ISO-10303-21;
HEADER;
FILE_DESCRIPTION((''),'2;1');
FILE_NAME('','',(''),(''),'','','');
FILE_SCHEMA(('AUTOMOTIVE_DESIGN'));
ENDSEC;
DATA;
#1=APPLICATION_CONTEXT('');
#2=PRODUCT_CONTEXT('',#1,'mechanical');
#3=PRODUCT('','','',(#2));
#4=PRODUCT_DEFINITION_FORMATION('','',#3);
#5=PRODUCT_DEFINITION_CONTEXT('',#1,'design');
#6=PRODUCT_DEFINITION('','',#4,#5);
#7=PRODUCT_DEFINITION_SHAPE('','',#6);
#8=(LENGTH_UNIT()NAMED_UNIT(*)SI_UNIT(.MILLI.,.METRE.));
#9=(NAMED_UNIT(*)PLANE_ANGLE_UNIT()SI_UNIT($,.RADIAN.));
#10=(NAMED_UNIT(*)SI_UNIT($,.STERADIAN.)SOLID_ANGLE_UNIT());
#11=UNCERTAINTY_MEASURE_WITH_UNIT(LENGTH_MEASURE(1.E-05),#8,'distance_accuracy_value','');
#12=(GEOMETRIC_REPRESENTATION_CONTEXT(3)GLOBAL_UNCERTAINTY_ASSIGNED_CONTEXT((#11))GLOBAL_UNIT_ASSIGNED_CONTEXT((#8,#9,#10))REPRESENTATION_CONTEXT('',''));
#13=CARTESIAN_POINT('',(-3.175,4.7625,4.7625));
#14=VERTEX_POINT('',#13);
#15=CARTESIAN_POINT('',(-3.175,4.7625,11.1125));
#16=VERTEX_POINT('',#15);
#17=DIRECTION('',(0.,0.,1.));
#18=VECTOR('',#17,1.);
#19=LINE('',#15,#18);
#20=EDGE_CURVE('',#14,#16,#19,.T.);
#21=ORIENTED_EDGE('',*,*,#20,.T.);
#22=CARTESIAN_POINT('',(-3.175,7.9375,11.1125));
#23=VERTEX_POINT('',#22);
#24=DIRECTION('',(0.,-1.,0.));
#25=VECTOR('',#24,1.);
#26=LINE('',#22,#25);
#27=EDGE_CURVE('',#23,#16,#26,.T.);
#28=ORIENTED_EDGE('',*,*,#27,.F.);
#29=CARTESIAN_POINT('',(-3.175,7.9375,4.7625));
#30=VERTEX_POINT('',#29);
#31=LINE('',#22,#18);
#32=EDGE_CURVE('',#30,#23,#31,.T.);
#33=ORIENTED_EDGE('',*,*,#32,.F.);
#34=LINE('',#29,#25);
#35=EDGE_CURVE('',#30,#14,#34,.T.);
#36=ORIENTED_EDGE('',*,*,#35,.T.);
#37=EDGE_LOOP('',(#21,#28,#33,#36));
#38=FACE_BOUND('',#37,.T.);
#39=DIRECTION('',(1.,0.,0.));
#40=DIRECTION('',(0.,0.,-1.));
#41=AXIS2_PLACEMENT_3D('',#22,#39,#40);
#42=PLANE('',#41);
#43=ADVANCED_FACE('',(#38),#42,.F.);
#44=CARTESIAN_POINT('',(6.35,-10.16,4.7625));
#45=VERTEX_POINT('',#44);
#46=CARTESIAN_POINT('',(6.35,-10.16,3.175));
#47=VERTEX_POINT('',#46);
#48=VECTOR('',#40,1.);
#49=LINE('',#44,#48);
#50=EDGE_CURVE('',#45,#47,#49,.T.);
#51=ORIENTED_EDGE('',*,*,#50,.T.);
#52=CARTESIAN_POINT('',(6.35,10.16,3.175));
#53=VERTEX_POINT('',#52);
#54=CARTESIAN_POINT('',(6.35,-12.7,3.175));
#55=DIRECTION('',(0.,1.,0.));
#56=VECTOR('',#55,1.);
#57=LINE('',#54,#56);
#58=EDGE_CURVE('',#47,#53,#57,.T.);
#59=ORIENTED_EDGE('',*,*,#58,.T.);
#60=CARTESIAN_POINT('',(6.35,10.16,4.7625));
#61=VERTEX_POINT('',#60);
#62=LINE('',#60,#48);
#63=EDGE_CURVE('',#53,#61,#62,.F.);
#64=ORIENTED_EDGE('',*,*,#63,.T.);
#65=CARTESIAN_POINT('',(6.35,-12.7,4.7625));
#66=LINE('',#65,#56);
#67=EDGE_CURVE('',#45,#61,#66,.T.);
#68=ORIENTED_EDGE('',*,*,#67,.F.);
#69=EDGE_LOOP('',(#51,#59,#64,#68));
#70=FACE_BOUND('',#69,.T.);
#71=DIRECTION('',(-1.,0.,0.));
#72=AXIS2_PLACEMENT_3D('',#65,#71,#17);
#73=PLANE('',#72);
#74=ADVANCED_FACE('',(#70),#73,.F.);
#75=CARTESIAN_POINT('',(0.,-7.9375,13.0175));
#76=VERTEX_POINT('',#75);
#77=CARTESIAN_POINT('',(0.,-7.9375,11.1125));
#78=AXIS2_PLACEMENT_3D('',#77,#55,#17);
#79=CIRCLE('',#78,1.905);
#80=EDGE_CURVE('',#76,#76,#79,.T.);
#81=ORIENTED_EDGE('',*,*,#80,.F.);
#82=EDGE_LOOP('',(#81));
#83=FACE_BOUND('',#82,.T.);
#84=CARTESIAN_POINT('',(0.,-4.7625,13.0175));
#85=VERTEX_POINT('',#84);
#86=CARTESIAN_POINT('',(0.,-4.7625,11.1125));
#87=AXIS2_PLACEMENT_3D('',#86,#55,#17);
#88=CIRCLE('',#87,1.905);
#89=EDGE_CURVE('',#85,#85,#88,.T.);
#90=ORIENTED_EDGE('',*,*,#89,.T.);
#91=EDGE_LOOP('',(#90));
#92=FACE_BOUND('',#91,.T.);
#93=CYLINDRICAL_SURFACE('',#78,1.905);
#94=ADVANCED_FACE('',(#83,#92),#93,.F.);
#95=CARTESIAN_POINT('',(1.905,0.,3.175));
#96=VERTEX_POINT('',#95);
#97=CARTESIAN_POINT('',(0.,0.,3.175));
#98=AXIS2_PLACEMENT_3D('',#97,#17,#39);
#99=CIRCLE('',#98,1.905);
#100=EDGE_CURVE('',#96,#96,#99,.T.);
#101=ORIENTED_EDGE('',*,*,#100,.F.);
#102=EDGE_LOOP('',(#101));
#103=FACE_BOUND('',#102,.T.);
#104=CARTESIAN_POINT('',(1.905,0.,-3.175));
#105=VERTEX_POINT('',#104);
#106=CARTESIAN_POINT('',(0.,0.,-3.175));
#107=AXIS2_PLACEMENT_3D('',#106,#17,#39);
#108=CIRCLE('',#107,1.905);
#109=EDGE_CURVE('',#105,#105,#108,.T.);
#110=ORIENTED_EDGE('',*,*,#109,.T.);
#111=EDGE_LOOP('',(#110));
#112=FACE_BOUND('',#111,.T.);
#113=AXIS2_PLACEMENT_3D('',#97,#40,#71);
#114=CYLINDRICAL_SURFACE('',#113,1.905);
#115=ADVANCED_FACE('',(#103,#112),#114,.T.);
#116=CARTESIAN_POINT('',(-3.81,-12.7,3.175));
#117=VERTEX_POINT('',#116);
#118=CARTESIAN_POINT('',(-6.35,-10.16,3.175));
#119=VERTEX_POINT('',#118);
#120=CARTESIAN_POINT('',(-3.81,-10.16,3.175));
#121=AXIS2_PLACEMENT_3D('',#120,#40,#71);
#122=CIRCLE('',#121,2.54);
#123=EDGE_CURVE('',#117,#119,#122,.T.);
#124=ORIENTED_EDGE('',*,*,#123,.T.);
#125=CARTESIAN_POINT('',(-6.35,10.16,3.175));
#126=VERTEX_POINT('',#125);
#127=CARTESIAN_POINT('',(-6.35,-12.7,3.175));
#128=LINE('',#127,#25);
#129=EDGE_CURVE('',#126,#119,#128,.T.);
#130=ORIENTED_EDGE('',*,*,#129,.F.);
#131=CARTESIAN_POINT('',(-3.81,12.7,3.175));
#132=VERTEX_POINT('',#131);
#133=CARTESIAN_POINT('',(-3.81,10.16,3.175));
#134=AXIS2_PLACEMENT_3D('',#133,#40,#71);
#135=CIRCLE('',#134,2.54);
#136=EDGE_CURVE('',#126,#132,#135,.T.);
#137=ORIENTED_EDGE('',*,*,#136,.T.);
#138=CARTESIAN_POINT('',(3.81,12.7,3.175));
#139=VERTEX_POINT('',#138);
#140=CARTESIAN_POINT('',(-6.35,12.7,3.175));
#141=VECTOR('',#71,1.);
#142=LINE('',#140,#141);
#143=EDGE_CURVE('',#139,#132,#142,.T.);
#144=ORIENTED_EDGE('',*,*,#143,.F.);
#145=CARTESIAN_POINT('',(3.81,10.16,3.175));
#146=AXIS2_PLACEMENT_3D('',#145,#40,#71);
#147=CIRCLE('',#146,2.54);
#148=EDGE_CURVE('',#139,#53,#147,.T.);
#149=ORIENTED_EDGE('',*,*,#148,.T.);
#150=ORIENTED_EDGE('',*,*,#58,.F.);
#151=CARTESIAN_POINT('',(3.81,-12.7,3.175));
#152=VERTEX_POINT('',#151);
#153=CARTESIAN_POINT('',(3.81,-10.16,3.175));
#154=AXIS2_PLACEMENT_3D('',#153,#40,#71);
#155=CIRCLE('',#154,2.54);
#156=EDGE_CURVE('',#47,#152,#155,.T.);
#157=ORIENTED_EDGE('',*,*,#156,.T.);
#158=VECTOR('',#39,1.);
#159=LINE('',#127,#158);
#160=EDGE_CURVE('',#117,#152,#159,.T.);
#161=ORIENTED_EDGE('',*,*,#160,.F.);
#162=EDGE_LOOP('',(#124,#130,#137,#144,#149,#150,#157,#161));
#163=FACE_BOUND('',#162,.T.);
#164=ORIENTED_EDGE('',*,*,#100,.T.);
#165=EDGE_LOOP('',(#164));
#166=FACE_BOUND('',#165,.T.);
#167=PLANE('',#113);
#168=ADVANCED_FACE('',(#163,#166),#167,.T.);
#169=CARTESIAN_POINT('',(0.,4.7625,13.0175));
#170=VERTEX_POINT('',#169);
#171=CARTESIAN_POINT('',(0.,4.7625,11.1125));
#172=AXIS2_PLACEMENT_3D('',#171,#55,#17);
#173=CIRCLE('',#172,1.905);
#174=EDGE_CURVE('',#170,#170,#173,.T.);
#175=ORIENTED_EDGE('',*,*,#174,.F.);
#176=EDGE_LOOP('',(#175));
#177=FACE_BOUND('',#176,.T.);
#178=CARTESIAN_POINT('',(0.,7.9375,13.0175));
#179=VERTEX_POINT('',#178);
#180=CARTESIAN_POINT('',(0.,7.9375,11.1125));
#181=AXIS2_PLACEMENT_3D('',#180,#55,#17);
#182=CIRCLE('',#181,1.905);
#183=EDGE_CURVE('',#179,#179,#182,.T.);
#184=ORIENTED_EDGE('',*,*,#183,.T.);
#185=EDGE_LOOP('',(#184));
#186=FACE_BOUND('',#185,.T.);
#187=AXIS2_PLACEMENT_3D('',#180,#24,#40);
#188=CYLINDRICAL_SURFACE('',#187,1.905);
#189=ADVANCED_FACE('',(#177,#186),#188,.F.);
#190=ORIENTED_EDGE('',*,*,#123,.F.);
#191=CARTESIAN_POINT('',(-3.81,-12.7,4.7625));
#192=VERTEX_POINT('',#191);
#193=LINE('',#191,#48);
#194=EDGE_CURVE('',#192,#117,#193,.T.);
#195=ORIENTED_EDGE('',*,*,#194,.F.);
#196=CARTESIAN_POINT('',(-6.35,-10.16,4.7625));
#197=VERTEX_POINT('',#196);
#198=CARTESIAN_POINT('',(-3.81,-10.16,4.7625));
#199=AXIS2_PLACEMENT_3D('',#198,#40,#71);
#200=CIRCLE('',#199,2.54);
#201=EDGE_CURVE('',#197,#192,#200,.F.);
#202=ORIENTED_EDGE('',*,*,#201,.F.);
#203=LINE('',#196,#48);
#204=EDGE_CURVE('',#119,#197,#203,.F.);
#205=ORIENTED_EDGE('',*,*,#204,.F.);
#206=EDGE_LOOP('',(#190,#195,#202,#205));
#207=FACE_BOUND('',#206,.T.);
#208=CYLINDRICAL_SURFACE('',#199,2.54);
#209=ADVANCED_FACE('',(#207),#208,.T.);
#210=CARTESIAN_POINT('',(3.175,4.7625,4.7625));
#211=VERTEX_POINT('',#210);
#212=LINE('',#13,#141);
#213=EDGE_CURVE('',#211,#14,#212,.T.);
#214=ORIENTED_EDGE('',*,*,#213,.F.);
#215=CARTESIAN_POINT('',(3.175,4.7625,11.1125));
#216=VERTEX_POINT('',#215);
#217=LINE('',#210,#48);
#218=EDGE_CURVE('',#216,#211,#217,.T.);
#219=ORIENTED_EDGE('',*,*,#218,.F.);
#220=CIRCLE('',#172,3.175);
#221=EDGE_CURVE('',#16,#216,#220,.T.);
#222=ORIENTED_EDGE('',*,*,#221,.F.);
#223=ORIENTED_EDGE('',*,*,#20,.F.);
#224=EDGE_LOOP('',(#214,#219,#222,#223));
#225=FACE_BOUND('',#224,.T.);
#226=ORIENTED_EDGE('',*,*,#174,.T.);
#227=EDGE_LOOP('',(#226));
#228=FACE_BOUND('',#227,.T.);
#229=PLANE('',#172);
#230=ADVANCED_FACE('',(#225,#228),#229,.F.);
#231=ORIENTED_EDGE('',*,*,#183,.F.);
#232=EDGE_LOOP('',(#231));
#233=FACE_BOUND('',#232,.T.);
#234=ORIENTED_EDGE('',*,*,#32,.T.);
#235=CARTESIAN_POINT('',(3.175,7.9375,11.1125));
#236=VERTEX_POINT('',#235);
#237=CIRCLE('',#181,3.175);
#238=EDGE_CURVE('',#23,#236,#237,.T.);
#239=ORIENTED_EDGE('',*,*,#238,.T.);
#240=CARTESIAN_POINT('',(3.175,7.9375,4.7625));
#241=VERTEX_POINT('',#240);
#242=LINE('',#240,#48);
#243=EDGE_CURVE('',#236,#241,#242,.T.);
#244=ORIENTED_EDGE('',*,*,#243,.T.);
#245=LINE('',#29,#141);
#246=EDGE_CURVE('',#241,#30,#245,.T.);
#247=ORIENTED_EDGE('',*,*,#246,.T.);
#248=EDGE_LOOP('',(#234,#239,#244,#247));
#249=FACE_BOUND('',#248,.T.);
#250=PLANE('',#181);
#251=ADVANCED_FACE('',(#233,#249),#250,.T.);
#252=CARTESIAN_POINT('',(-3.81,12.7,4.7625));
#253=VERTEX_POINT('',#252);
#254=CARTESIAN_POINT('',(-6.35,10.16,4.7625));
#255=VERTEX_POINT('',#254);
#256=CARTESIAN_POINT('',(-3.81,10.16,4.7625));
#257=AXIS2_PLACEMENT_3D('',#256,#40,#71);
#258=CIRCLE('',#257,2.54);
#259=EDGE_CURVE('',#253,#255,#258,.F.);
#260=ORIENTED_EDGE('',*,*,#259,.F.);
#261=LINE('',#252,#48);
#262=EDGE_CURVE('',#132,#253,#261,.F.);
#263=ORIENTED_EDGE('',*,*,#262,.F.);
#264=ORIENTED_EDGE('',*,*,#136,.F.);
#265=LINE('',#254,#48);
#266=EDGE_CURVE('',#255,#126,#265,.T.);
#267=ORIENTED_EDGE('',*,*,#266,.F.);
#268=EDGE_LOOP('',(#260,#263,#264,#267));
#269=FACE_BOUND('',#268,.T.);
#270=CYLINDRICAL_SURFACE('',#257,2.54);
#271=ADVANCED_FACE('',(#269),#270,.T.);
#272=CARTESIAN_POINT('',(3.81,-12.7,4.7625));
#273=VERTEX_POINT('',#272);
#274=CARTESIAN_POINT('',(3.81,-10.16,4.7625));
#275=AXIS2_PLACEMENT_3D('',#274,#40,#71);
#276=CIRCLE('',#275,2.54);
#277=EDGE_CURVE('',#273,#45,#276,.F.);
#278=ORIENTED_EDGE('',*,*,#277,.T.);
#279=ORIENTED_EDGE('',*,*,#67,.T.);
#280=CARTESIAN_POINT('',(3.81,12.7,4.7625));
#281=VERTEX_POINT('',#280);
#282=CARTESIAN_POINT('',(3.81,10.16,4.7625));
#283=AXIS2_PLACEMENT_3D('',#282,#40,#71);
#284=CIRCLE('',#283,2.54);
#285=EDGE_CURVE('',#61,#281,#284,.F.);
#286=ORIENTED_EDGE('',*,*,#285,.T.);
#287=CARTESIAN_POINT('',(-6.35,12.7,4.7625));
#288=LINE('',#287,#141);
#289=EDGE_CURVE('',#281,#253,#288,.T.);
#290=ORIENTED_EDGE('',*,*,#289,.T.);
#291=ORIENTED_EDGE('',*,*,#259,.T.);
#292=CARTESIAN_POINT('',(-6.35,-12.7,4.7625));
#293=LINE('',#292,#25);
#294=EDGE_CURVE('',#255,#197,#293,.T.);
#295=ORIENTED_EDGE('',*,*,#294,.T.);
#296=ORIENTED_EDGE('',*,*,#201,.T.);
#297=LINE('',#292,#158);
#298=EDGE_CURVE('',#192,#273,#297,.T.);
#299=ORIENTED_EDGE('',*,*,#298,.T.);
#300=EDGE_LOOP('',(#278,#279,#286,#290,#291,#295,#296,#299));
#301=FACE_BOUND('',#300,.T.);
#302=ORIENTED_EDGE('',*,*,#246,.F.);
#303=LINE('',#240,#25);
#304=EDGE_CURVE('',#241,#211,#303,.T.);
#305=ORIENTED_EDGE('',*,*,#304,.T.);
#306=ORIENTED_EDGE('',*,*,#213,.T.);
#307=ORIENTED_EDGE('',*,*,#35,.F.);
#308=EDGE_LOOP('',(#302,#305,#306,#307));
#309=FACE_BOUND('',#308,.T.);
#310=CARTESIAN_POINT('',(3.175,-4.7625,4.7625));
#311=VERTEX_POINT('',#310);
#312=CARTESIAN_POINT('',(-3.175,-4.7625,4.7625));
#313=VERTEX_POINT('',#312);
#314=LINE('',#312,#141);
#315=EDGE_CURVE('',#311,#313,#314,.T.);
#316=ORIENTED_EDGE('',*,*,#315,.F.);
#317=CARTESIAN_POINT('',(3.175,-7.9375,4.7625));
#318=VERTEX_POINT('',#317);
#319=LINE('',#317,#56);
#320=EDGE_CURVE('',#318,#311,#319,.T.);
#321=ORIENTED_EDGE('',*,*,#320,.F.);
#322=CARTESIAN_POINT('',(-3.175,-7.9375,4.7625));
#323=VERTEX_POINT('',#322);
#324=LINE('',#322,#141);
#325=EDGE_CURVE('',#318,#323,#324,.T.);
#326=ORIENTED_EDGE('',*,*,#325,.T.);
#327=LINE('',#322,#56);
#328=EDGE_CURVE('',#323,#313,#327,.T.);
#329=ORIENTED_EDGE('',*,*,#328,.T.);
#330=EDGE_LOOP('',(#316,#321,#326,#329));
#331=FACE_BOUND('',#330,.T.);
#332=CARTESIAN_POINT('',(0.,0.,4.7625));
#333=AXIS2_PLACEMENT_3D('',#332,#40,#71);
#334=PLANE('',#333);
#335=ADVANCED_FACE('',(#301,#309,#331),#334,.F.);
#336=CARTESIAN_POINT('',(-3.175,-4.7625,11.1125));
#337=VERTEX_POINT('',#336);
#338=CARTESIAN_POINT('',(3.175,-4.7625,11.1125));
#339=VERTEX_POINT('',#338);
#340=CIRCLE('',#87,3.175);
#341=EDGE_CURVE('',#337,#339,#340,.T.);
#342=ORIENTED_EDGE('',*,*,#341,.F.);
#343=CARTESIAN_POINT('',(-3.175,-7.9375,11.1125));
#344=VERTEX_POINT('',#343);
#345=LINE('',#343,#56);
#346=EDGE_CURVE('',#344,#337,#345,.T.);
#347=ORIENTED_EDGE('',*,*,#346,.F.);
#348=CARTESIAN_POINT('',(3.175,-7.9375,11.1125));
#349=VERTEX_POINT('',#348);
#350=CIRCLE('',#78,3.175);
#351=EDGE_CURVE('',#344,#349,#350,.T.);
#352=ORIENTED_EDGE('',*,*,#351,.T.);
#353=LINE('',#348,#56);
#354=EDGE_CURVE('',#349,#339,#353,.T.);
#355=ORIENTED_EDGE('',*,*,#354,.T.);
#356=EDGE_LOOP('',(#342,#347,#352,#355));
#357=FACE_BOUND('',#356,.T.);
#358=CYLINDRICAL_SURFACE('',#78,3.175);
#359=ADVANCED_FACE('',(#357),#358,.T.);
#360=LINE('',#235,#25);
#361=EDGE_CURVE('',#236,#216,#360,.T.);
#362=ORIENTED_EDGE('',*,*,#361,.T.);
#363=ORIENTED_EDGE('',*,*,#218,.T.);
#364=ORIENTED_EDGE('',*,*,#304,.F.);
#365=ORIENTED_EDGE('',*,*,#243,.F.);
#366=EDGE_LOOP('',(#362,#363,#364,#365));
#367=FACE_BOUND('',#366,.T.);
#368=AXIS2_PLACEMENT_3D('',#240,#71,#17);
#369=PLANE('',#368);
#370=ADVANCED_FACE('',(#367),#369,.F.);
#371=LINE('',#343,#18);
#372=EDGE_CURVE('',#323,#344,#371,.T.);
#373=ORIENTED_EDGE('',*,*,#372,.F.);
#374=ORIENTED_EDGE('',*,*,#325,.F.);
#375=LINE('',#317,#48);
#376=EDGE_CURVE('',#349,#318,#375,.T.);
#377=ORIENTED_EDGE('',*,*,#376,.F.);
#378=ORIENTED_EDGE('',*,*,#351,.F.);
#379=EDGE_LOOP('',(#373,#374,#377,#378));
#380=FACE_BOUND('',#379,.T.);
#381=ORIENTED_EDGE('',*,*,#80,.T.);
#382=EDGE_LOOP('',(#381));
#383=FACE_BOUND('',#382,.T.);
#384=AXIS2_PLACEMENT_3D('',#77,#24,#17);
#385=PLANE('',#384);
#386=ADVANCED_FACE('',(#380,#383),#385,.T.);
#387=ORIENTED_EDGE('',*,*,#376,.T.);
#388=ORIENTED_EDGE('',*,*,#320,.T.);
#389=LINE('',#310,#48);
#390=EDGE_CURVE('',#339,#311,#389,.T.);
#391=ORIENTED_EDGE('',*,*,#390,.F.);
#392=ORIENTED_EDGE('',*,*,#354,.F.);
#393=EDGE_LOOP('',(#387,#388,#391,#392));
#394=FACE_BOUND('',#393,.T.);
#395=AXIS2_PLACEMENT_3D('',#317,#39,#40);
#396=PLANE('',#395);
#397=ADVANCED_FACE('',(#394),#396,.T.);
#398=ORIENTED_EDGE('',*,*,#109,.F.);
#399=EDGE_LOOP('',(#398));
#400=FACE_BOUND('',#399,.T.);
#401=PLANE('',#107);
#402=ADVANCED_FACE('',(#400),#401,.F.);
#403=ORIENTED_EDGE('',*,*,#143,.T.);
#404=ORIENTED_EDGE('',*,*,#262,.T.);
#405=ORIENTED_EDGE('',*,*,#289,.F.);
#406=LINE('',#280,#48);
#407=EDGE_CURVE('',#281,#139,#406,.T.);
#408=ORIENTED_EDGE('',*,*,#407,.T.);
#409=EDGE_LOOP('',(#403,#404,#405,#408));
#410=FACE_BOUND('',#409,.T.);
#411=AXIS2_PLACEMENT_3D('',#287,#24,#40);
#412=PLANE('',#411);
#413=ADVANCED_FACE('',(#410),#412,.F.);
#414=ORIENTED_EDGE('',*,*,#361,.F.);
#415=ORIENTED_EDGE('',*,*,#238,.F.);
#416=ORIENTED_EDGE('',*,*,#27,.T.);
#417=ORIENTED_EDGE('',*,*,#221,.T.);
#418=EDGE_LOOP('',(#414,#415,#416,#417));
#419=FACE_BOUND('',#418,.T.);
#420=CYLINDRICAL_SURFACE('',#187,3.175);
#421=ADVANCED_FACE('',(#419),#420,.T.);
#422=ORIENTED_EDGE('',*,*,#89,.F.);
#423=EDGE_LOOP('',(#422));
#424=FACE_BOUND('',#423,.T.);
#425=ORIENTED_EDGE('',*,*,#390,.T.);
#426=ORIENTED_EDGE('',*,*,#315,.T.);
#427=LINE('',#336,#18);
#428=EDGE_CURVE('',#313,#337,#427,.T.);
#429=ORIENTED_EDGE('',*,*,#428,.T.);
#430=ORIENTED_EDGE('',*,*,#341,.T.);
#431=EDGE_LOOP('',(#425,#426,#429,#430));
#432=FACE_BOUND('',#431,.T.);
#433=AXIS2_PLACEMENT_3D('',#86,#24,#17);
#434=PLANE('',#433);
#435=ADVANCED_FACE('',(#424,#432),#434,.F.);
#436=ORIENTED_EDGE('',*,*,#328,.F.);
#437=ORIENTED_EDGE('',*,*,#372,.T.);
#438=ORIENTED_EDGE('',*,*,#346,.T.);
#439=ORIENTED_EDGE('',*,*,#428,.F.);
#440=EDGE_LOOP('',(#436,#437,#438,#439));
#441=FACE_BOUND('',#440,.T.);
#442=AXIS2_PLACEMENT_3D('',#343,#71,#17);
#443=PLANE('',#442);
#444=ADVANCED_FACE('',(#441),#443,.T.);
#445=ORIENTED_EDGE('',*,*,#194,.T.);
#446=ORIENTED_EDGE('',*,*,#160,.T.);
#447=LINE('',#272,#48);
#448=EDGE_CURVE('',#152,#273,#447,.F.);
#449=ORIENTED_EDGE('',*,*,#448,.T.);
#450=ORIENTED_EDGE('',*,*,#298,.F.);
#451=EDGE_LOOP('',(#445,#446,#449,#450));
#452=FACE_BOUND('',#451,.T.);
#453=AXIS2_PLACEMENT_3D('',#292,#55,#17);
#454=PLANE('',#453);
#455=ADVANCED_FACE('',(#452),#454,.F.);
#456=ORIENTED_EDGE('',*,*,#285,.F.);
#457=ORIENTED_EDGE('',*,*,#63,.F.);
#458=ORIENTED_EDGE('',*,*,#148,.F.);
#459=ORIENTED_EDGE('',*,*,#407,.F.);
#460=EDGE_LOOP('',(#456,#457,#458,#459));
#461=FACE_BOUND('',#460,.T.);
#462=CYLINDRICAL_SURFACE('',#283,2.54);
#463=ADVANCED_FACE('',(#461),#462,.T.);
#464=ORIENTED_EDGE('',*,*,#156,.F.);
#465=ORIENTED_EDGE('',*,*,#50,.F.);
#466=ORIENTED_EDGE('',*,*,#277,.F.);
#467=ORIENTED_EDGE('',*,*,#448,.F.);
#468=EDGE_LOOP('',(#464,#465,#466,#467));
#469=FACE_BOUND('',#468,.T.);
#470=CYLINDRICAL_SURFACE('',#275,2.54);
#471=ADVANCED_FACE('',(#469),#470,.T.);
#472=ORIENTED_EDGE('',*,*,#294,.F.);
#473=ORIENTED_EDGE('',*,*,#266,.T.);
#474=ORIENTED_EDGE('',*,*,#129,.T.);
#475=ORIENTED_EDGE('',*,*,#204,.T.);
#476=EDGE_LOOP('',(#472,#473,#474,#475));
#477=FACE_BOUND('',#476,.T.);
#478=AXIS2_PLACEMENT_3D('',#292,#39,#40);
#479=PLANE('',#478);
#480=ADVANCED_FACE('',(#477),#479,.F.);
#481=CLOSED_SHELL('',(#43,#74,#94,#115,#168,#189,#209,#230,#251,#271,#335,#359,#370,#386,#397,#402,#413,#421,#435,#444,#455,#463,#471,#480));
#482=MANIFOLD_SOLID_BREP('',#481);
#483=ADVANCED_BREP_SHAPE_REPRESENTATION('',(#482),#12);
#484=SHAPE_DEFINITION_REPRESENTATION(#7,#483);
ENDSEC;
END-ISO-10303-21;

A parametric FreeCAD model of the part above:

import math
import FreeCAD as App
import Part
import Sketcher
Q = App.Units.Quantity


def edges_at(feature, points):
    """Names of the edges that pass closest to the given points."""
    edges = feature.Shape.Edges
    near = lambda p: min(range(len(edges)), key=lambda i: edges[i].distToShape(Part.Vertex(*p))[0])
    return sorted({f"Edge{near(p) + 1}" for p in points})


def add_polygon(sketch, points):
    """Adds a closed chain of lines whose ends are joined by coincident constraints."""
    first, n = sketch.GeometryCount, len(points)
    for a, b in zip(points, points[1:] + points[:1]):
        sketch.addGeometry(Part.LineSegment(App.Vector(*a, 0), App.Vector(*b, 0)), False)
    for i in range(n):
        sketch.addConstraint(Sketcher.Constraint("Coincident", first + i, 2, first + (i + 1) % n, 1))

doc = App.newDocument("Part")
body = doc.addObject("PartDesign::Body", "Body")

# Sketch on XY plane
sketch1 = doc.addObject("Sketcher::SketchObject", "Sketch")
body.addObject(sketch1)
sketch1.AttachmentSupport = (doc.XY_Plane, [""])
sketch1.MapMode = "FlatFace"
sketch1.addGeometry(Part.Circle(App.Vector(0, 0, 0), App.Vector(0, 0, 1), 1.9), False)
sketch1.addConstraint([
    Sketcher.Constraint("Coincident", 0, 3, -1, 1),
    Sketcher.Constraint("Diameter", 0, Q("0.15 in")),
])
pad1 = doc.addObject("PartDesign::Pad", "Pad")
body.addObject(pad1)
pad1.Profile = sketch1
pad1.Length = Q("0.25 in")
pad1.Midplane = True

# Sketch on XY plane
sketch2 = doc.addObject("Sketcher::SketchObject", "Sketch001")
body.addObject(sketch2)
sketch2.AttachmentSupport = (doc.XY_Plane, [""])
sketch2.MapMode = "FlatFace"
sketch2.AttachmentOffset = App.Placement(App.Vector(0, 0, 0.125 * 25.4), App.Rotation())
add_polygon(sketch2, [(-6, 13), (-6, -13), (6, -13), (6, 13)])  # lines 0-3
sketch2.addConstraint([
    Sketcher.Constraint("Vertical", 0),
    Sketcher.Constraint("Horizontal", 1),
    Sketcher.Constraint("Vertical", 2),
    Sketcher.Constraint("Horizontal", 3),
    Sketcher.Constraint("Symmetric", 0, 2, 2, 2, -1, 1),
    Sketcher.Constraint("DistanceY", 0, 2, 0, 1, Q("1 in")),
    Sketcher.Constraint("DistanceX", 1, 1, 1, 2, Q("0.5 in")),
])
pad2 = doc.addObject("PartDesign::Pad", "Pad001")
body.addObject(pad2)
pad2.Profile = sketch2
pad2.Length = Q("0.0625 in")

# Sketch on XZ plane
sketch3 = doc.addObject("Sketcher::SketchObject", "Sketch002")
body.addObject(sketch3)
sketch3.AttachmentSupport = (doc.XZ_Plane, [""])
sketch3.MapMode = "FlatFace"
sketch3.AttachmentOffset = App.Placement(App.Vector(0, 0, -0.25 * 25.4), App.Rotation())
sketch3.addGeometry([
    Part.LineSegment(App.Vector(3.2, 4.8, 0), App.Vector(-3.2, 4.8, 0)),  # 0
    Part.LineSegment(App.Vector(-3.2, 4.8, 0), App.Vector(-3.2, 11.1, 0)),  # 1
    Part.ArcOfCircle(Part.Circle(App.Vector(0, 11.1, 0), App.Vector(0, 0, 1), 3.2), math.radians(0), math.radians(180)),  # 2
    Part.LineSegment(App.Vector(3.2, 11.1, 0), App.Vector(3.2, 4.8, 0)),  # 3
    Part.Circle(App.Vector(0, 11.1, 0), App.Vector(0, 0, 1), 1.9),  # 4
], False)
sketch3.addConstraint([
    Sketcher.Constraint("Coincident", 0, 2, 1, 1),
    Sketcher.Constraint("Tangent", 1, 2, 2, 2),
    Sketcher.Constraint("Tangent", 2, 1, 3, 1),
    Sketcher.Constraint("Coincident", 3, 2, 0, 1),
    Sketcher.Constraint("Horizontal", 0),
    Sketcher.Constraint("Vertical", 1),
    Sketcher.Constraint("Vertical", 3),
    Sketcher.Constraint("Coincident", 4, 3, 2, 3),
    Sketcher.Constraint("PointOnObject", 2, 3, -2),
    Sketcher.Constraint("Equal", 0, 1),
    Sketcher.Constraint("Diameter", 4, Q("0.15 in")),
    Sketcher.Constraint("Radius", 2, Q("0.125 in")),
    Sketcher.Constraint("DistanceY", -1, 1, 2, 3, Q("0.4375 in")),
])
pad3 = doc.addObject("PartDesign::Pad", "Pad002")
body.addObject(pad3)
pad3.Profile = sketch3
pad3.Length = Q("0.125 in")
pad3.Midplane = True
doc.recompute()

mirrored = doc.addObject("PartDesign::Mirrored", "Mirrored")
body.addObject(mirrored)
mirrored.Originals = [pad3]
mirrored.MirrorPlane = (doc.XZ_Plane, [""])
body.Tip = mirrored
doc.recompute()

fillet = doc.addObject("PartDesign::Fillet", "Fillet")
body.addObject(fillet)
fillet.Base = (mirrored, edges_at(mirrored, [
    (6.35, -12.7, 3.969),
    (6.35, 12.7, 3.969),
    (-6.35, 12.7, 3.969),
    (-6.35, -12.7, 3.969),
]))
fillet.Radius = Q("0.1 in")

doc.recompute()
